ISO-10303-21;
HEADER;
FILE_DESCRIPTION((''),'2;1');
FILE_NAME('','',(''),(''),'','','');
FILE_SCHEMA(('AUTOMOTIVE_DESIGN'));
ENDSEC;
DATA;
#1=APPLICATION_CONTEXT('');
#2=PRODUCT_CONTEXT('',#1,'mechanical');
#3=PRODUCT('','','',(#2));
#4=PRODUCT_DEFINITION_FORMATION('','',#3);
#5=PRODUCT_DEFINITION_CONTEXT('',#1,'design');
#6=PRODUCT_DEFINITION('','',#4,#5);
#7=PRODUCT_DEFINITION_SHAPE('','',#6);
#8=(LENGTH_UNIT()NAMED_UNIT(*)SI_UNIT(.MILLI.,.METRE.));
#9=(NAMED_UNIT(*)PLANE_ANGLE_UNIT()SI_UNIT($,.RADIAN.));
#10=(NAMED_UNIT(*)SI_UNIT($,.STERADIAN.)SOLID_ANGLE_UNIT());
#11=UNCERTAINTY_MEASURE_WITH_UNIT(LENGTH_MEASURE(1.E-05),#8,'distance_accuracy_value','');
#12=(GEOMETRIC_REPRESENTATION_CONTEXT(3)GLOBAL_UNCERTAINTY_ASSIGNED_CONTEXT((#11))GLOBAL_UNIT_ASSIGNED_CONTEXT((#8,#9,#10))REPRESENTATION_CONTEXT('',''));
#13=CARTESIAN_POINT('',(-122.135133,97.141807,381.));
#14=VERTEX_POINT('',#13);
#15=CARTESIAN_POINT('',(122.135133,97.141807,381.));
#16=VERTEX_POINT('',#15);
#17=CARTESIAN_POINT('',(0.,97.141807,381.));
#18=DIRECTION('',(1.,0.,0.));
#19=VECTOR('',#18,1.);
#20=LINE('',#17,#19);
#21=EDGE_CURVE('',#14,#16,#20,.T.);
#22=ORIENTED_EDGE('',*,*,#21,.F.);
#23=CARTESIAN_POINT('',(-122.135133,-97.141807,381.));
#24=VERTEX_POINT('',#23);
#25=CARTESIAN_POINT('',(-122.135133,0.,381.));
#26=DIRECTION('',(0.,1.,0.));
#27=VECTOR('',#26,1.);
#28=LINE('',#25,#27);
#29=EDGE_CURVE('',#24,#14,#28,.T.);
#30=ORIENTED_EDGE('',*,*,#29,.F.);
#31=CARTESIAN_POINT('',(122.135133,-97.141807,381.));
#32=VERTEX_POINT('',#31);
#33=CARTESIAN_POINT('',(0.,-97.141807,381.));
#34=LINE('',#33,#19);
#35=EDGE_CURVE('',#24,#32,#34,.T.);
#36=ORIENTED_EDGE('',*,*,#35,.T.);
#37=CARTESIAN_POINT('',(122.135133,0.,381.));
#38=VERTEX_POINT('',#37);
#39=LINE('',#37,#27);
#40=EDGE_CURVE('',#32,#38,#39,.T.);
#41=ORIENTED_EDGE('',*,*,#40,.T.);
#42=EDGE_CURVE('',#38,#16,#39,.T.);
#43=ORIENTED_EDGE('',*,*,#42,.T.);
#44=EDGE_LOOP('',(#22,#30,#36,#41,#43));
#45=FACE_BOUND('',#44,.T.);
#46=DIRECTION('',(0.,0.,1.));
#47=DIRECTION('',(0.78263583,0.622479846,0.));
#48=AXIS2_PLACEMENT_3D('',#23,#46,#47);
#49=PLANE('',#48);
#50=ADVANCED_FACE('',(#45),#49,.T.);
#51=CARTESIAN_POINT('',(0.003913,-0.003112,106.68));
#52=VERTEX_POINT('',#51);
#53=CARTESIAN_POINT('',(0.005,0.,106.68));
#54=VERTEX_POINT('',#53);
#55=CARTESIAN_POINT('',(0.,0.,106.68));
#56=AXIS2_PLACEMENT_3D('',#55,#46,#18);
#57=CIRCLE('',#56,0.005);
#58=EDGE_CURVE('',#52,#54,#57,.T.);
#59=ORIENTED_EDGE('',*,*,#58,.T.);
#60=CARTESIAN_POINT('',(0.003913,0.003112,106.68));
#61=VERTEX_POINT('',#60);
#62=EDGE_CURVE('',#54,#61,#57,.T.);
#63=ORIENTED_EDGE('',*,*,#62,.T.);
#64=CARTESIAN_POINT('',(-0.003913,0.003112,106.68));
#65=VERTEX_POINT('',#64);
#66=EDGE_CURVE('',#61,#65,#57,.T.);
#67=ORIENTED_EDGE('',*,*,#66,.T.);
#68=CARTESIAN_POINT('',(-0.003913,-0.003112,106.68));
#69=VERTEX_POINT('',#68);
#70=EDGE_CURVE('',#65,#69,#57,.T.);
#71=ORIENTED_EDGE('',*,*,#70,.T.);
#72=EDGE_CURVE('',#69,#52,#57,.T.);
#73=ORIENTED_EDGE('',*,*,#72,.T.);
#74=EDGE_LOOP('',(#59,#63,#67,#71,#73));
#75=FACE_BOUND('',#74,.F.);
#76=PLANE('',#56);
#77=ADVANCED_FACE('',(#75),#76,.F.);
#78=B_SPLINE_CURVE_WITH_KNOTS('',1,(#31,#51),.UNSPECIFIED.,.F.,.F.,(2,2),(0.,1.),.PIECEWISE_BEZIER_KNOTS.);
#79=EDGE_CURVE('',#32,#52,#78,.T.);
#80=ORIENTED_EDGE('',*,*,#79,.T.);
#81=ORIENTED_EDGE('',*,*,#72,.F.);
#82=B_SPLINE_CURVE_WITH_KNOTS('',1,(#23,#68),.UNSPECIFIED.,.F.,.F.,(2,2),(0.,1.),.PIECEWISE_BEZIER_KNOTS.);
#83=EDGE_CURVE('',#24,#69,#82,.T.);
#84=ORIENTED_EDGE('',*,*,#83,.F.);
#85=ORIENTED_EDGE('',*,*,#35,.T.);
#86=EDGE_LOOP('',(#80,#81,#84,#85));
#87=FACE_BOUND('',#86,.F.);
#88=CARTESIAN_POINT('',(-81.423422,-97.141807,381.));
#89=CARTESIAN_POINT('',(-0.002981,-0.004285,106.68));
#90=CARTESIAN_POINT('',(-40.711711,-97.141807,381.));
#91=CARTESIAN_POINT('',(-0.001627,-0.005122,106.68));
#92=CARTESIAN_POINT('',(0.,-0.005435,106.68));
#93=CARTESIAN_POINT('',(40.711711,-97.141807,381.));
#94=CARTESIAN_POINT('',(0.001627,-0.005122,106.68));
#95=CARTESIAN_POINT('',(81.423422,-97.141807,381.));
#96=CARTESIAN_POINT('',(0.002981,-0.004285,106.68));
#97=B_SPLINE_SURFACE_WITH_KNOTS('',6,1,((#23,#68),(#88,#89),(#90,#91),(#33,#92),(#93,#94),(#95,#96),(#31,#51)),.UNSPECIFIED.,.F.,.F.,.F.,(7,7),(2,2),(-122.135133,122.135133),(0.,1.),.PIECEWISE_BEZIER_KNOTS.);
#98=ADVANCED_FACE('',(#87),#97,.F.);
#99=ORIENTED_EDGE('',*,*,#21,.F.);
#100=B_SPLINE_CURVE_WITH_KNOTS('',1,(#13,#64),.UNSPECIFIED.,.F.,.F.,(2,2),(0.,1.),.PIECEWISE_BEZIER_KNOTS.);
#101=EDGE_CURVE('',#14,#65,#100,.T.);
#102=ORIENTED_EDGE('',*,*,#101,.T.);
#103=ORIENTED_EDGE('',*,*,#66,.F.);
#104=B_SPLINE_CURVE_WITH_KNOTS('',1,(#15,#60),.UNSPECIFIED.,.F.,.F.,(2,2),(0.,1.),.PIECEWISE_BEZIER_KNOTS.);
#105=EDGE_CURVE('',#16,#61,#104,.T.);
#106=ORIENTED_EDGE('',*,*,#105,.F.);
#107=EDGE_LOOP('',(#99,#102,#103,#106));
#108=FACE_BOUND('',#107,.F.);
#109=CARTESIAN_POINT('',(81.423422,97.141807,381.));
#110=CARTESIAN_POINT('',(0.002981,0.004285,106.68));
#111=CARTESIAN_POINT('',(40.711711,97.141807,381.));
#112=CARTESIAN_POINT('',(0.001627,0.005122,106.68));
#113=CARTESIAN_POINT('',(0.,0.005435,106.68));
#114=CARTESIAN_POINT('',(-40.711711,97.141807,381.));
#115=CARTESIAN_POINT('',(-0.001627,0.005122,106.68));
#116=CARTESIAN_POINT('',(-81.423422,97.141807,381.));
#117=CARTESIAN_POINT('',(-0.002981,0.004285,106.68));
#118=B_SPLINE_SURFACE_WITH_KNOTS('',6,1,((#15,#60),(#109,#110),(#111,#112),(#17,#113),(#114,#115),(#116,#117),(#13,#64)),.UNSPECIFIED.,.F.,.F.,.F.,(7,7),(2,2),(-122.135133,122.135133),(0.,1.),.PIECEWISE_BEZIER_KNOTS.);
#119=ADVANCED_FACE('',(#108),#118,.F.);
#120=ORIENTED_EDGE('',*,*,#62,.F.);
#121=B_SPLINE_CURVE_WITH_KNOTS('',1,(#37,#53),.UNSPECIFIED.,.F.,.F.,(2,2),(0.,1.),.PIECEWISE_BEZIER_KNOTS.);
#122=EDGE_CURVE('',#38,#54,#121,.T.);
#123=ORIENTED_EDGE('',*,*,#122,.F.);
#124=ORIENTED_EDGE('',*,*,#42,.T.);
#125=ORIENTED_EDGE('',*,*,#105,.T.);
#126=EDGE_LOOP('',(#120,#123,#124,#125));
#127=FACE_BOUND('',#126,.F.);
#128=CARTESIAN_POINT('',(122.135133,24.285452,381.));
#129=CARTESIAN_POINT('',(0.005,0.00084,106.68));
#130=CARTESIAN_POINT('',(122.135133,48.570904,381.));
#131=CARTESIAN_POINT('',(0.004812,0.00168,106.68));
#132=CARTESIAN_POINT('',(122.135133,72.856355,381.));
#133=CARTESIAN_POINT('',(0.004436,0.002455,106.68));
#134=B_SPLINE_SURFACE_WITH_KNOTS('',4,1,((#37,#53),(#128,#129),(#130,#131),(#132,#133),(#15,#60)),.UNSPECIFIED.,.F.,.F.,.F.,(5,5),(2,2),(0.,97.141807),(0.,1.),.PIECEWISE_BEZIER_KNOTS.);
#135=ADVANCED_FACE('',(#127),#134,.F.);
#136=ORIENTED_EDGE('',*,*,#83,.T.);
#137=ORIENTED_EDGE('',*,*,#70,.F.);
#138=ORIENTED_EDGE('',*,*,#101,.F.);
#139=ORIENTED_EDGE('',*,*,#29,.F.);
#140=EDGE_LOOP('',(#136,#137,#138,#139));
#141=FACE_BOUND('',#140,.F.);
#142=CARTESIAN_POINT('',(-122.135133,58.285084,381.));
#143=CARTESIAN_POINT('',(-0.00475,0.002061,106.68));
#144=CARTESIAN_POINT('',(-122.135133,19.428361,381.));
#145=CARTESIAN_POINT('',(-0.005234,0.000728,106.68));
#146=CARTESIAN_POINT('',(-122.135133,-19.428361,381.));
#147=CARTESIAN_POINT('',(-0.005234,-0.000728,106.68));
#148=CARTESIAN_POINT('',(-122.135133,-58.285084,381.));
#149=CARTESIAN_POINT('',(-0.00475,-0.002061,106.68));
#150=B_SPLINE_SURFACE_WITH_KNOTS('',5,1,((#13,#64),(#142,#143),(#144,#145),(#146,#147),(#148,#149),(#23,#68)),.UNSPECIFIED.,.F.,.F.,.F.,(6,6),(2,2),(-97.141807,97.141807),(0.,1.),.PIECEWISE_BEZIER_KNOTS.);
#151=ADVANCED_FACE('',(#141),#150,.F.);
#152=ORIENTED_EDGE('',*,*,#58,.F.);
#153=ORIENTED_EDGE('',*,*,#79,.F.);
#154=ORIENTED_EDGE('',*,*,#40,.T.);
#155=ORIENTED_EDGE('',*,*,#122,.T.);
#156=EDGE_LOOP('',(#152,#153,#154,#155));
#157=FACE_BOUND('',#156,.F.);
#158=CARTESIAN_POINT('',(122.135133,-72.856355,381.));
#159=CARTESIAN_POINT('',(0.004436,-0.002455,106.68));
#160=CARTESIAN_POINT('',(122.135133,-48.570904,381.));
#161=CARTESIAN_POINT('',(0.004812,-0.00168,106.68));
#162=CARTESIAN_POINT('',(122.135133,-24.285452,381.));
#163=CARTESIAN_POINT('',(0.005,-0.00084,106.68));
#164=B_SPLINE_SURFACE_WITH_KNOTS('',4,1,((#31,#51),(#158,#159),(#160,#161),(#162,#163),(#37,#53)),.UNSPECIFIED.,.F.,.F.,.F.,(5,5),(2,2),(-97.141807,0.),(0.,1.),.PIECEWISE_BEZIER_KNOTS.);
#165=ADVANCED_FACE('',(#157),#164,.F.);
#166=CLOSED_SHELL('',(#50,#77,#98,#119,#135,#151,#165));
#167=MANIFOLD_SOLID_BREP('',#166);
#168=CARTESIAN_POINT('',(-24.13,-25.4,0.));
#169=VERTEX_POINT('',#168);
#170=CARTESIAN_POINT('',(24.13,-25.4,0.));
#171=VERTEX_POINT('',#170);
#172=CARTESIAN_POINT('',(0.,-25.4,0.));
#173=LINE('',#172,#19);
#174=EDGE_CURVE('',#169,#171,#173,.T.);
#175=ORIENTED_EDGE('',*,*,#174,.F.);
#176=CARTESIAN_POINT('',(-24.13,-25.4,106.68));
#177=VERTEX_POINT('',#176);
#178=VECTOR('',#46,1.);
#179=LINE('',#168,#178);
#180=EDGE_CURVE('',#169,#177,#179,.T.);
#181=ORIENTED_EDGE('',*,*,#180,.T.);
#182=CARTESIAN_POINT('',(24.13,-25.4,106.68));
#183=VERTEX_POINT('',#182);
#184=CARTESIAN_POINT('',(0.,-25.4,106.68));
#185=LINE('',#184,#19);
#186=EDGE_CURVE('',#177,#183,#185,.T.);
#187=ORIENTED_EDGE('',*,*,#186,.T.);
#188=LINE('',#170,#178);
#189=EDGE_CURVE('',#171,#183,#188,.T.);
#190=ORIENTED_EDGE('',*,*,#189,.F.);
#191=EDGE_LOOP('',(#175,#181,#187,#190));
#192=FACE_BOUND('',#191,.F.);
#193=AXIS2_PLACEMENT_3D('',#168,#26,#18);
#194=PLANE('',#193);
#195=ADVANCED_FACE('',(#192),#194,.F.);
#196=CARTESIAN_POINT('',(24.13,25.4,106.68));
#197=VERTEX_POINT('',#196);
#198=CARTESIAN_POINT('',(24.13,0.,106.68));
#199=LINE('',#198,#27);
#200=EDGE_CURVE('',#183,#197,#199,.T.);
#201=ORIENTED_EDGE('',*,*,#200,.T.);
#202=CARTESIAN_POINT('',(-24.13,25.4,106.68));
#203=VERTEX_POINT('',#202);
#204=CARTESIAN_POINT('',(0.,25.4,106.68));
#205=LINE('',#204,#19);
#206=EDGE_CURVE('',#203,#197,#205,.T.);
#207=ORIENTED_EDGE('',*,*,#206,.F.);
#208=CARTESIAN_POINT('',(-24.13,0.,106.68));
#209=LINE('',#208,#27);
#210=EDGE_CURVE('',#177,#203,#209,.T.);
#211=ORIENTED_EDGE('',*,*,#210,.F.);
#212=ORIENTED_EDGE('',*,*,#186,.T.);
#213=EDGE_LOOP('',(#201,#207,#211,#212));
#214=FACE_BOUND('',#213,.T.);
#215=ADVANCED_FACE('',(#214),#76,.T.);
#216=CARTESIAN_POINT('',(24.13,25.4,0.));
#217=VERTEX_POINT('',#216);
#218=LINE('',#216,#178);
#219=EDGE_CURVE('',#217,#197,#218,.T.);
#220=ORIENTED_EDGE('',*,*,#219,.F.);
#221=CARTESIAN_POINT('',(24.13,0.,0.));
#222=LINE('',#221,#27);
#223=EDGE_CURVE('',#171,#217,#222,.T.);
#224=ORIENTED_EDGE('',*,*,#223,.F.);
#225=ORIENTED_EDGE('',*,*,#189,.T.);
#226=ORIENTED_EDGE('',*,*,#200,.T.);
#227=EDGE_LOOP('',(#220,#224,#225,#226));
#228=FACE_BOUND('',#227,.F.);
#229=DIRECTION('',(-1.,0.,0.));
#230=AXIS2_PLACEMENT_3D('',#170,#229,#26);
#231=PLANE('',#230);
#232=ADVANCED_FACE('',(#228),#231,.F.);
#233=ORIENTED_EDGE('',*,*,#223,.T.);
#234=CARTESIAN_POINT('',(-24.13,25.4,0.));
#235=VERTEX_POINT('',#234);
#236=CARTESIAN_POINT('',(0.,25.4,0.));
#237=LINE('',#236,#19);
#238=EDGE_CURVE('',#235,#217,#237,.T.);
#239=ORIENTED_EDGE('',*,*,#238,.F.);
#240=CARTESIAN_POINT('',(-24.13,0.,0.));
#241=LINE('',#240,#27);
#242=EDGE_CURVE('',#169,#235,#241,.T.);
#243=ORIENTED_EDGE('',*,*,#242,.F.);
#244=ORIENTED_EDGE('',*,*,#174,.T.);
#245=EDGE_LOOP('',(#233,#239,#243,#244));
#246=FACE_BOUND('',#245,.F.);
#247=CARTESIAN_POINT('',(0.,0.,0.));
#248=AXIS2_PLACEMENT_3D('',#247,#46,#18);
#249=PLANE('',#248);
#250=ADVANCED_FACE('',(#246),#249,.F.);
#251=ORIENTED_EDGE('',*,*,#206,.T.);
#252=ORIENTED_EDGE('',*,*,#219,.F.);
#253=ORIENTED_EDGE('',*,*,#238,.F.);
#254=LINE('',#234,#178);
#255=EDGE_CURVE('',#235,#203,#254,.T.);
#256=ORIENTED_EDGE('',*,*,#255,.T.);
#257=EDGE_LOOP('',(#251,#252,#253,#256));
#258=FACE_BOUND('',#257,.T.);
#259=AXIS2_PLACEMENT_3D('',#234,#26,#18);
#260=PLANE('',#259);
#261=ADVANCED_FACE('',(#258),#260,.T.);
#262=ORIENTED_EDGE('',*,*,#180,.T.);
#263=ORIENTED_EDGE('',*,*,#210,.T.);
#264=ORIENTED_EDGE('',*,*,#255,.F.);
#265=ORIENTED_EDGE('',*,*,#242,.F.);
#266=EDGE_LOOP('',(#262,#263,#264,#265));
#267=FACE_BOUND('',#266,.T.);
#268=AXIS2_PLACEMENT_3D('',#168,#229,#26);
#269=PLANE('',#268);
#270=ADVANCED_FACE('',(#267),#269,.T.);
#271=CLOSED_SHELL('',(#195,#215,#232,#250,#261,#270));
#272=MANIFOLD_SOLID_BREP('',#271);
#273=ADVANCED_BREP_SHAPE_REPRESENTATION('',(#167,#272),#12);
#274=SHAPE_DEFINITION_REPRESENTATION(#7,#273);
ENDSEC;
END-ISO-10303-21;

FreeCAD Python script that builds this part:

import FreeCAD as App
import Part
import Sketcher
Q = App.Units.Quantity

doc = App.newDocument("Part")
body = doc.addObject("PartDesign::Body", "Body")

# Sketch on XY plane
sketch1 = doc.addObject("Sketcher::SketchObject", "Sketch")
body.addObject(sketch1)
sketch1.AttachmentSupport = (doc.XY_Plane, [""])
sketch1.MapMode = "FlatFace"
sketch1.addGeometry([
    Part.LineSegment(App.Vector(-24, 25, 0), App.Vector(-24, -25, 0)),
    Part.LineSegment(App.Vector(-24, -25, 0), App.Vector(24, -25, 0)),
    Part.LineSegment(App.Vector(24, -25, 0), App.Vector(24, 25, 0)),
    Part.LineSegment(App.Vector(24, 25, 0), App.Vector(-24, 25, 0)),
], False)
sketch1.addConstraint([
    Sketcher.Constraint("Coincident", 0, 2, 1, 1),
    Sketcher.Constraint("Coincident", 1, 2, 2, 1),
    Sketcher.Constraint("Coincident", 2, 2, 3, 1),
    Sketcher.Constraint("Coincident", 3, 2, 0, 1),
    Sketcher.Constraint("Vertical", 0),
    Sketcher.Constraint("Horizontal", 1),
    Sketcher.Constraint("Vertical", 2),
    Sketcher.Constraint("Horizontal", 3),
    Sketcher.Constraint("Symmetric", 0, 2, 2, 2, -1, 1),
    Sketcher.Constraint("DistanceY", 0, 2, 0, 1, Q("2 in")),
    Sketcher.Constraint("DistanceX", 1, 1, 1, 2, Q("1.9 in")),
])
pad1 = doc.addObject("PartDesign::Pad", "Pad")
body.addObject(pad1)
pad1.Profile = sketch1
pad1.Length = Q("4.2 in")
body2 = doc.addObject("PartDesign::Body", "Body001")

# Sketch on XY plane
sketch2 = doc.addObject("Sketcher::SketchObject", "Sketch001")
body2.addObject(sketch2)
sketch2.AttachmentSupport = (doc.getObject("XY_Plane001"), [""])
sketch2.MapMode = "FlatFace"
sketch2.AttachmentOffset = App.Placement(App.Vector(0, 0, 15 * 25.4), App.Rotation())
sketch2.addGeometry([
    Part.LineSegment(App.Vector(-122, 97, 0), App.Vector(-122, -97, 0)),
    Part.LineSegment(App.Vector(-122, -97, 0), App.Vector(122, -97, 0)),
    Part.LineSegment(App.Vector(122, -97, 0), App.Vector(122, 97, 0)),
    Part.LineSegment(App.Vector(122, 97, 0), App.Vector(-122, 97, 0)),
], False)
sketch2.addConstraint([
    Sketcher.Constraint("Coincident", 0, 2, 1, 1),
    Sketcher.Constraint("Coincident", 1, 2, 2, 1),
    Sketcher.Constraint("Coincident", 2, 2, 3, 1),
    Sketcher.Constraint("Coincident", 3, 2, 0, 1),
    Sketcher.Constraint("Vertical", 0),
    Sketcher.Constraint("Horizontal", 1),
    Sketcher.Constraint("Vertical", 2),
    Sketcher.Constraint("Horizontal", 3),
    Sketcher.Constraint("Symmetric", 0, 2, 2, 2, -1, 1),
    Sketcher.Constraint("DistanceX", 1, 1, 1, 2, 244.270266),
    Sketcher.Constraint("DistanceY", 0, 2, 0, 1, 194.283614),
])

# Sketch on XY plane
sketch3 = doc.addObject("Sketcher::SketchObject", "Sketch002")
body2.addObject(sketch3)
sketch3.AttachmentSupport = (doc.getObject("XY_Plane001"), [""])
sketch3.MapMode = "FlatFace"
sketch3.AttachmentOffset = App.Placement(App.Vector(0, 0, 4.2 * 25.4), App.Rotation())
sketch3.addGeometry(Part.Circle(App.Vector(0, 0, 0), App.Vector(0, 0, 1), 0.005), False)
sketch3.addConstraint([
    Sketcher.Constraint("Coincident", 0, 3, -1, 1),
    Sketcher.Constraint("Diameter", 0, 0.01),
])

additiveloft = doc.addObject("PartDesign::AdditiveLoft", "AdditiveLoft")
body2.addObject(additiveloft)
additiveloft.Profile = sketch2
additiveloft.Sections = [sketch3]

doc.recompute()
